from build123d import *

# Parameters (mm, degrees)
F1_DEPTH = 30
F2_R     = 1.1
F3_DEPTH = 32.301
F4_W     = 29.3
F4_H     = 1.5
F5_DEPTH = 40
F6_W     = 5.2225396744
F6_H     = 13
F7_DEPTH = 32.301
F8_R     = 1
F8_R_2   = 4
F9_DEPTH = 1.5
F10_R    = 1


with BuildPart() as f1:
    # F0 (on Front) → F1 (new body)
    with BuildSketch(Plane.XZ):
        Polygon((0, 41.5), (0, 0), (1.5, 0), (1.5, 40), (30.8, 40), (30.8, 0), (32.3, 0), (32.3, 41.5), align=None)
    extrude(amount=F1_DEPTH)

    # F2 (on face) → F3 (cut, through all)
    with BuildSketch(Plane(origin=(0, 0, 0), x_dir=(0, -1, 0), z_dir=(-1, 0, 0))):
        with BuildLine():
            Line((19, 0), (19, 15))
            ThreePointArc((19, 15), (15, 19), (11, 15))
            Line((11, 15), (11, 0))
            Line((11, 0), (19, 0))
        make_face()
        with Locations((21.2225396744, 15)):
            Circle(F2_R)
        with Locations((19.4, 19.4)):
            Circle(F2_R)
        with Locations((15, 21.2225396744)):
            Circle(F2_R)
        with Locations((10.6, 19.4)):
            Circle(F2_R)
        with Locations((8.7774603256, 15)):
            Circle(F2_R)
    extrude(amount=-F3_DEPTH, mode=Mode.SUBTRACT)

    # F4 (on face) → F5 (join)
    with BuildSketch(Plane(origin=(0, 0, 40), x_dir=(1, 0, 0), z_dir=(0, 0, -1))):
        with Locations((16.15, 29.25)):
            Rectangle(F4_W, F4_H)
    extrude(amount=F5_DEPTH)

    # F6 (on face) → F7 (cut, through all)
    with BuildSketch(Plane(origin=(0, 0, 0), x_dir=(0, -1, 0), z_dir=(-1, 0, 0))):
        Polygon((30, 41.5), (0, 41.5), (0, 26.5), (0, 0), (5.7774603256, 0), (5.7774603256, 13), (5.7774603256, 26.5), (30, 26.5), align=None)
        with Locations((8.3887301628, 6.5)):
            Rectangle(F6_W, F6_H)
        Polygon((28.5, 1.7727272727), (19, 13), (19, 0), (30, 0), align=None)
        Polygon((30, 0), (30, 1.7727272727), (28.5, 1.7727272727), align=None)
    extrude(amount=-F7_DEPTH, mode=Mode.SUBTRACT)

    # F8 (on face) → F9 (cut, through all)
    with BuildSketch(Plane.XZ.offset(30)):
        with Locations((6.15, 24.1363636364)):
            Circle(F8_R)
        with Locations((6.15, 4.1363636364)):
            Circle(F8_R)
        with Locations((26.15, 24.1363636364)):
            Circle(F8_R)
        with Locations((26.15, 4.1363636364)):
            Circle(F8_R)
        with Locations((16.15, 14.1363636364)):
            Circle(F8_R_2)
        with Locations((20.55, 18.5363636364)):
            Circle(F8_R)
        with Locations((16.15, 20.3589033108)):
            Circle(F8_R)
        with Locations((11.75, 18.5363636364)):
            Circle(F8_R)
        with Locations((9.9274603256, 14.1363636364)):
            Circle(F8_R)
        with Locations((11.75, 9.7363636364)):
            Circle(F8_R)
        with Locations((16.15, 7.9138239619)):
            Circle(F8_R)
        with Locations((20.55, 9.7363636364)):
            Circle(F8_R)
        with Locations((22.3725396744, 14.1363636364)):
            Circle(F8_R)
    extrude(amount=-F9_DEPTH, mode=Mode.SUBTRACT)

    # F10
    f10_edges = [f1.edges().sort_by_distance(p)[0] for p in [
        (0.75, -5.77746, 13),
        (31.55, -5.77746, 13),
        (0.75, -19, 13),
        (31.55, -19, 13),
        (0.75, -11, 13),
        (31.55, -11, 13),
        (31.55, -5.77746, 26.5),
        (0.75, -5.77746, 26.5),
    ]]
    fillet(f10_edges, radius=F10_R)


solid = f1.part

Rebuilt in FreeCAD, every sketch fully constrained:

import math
import FreeCAD as App
import Part
import Sketcher

V = App.Vector


def edges_at(feature, points):
    """Names of the edges that pass closest to the given points."""
    edges = feature.Shape.Edges
    near = lambda p: min(range(len(edges)), key=lambda i: edges[i].distToShape(Part.Vertex(*p))[0])
    return sorted({f"Edge{near(p) + 1}" for p in points})

doc = App.newDocument("Part")
params = doc.addObject("Spreadsheet::Sheet", "Params")
for row, (alias, value) in enumerate([
    ("sketch1_height", "40 mm"),
    ("sketch1_width", "1.5 mm"),
    ("sketch1_width2", "29.3 mm"),
    ("sketch1_height2", "41.5 mm"),
    ("pad1_length", "30 mm"),
    ("sketch2_radius", "4 mm"),
    ("sketch2_diameter", "2.2 mm"),
    ("sketch2_height", "15 mm"),
    ("sketch3_width", "29.3 mm"),
    ("sketch3_height", "1.5 mm"),
    ("pad2_length", "40 mm"),
    ("sketch4_width", "30 mm"),
    ("sketch4_width2", "11 mm"),
    ("sketch4_height", "13 mm"),
    ("sketch4_height2", "15 mm"),
    ("sketch4_width3", "1.5 mm"),
    ("sketch5_diameter", "2 mm"),
    ("sketch5_diameter2", "8 mm"),
    ("fillet_radius", "1 mm"),
], start=1):
    params.set(f"A{row}", alias)
    params.set(f"B{row}", "=" + value)
    params.setAlias(f"B{row}", alias)

body = doc.addObject("PartDesign::Body", "Body")

# Sketch on XZ plane
sketch1 = body.newObject("Sketcher::SketchObject", "Sketch")
sketch1.AttachmentSupport = (doc.getObject("XZ_Plane"), [""])
sketch1.MapMode = "FlatFace"
sketch1.addGeometry([
    Part.LineSegment(V(0, 41.5, 0), V(0, 0, 0)),  # 0
    Part.LineSegment(V(0, 0, 0), V(1.5, 0, 0)),  # 1
    Part.LineSegment(V(1.5, 0, 0), V(1.5, 40, 0)),  # 2
    Part.LineSegment(V(1.5, 40, 0), V(30.8, 40, 0)),  # 3
    Part.LineSegment(V(30.8, 40, 0), V(30.8, 0, 0)),  # 4
    Part.LineSegment(V(30.8, 0, 0), V(32.3, 0, 0)),  # 5
    Part.LineSegment(V(32.3, 0, 0), V(32.3, 41.5, 0)),  # 6
    Part.LineSegment(V(32.3, 41.5, 0), V(0, 41.5, 0)),  # 7
], False)
sketch1.addConstraint([
    Sketcher.Constraint("Coincident", 0, 2, 1, 1),
    Sketcher.Constraint("Coincident", 1, 2, 2, 1),
    Sketcher.Constraint("Coincident", 2, 2, 3, 1),
    Sketcher.Constraint("Coincident", 3, 2, 4, 1),
    Sketcher.Constraint("Coincident", 4, 2, 5, 1),
    Sketcher.Constraint("Coincident", 5, 2, 6, 1),
    Sketcher.Constraint("Coincident", 6, 2, 7, 1),
    Sketcher.Constraint("Coincident", 7, 2, 0, 1),
    Sketcher.Constraint("Vertical", 0),
    Sketcher.Constraint("Horizontal", 1),
    Sketcher.Constraint("Vertical", 2),
    Sketcher.Constraint("Horizontal", 3),
    Sketcher.Constraint("Vertical", 4),
    Sketcher.Constraint("Horizontal", 5),
    Sketcher.Constraint("Vertical", 6),
    Sketcher.Constraint("Horizontal", 7),
    Sketcher.Constraint("Coincident", 0, 2, -1, 1),
    Sketcher.Constraint("PointOnObject", 4, 2, -1),
    Sketcher.Constraint("Equal", 1, 5),
    Sketcher.Constraint("DistanceY", 2, 1, 2, 2, 40.0),
    Sketcher.Constraint("DistanceX", 1, 1, 1, 2, 1.5),
    Sketcher.Constraint("DistanceX", 3, 1, 3, 2, 29.3),
    Sketcher.Constraint("DistanceY", 0, 2, 0, 1, 41.5),
])
sketch1.setExpression("Constraints[19]", "Params.sketch1_height")
sketch1.setExpression("Constraints[20]", "Params.sketch1_width")
sketch1.setExpression("Constraints[21]", "Params.sketch1_width2")
sketch1.setExpression("Constraints[22]", "Params.sketch1_height2")
pad1 = body.newObject("PartDesign::Pad", "Pad")
pad1.Profile = sketch1
pad1.setExpression("Length", "Params.pad1_length")

# Sketch on YZ plane
sketch2 = body.newObject("Sketcher::SketchObject", "Sketch001")
sketch2.AttachmentSupport = (doc.getObject("YZ_Plane"), [""])
sketch2.MapMode = "FlatFace"
sketch2.addGeometry([
    Part.LineSegment(V(-19, 0, 0), V(-19, 15, 0)),  # 0
    Part.ArcOfCircle(Part.Circle(V(-15, 15, 0), V(0, 0, 1), 4), math.radians(0), math.radians(180)),  # 1
    Part.LineSegment(V(-11, 15, 0), V(-11, 0, 0)),  # 2
    Part.LineSegment(V(-11, 0, 0), V(-19, 0, 0)),  # 3
    Part.Circle(V(-21.22254, 15, 0), V(0, 0, 1), 1.1),  # 4
    Part.Circle(V(-19.4, 19.4, 0), V(0, 0, 1), 1.1),  # 5
    Part.Circle(V(-15, 21.22254, 0), V(0, 0, 1), 1.1),  # 6
    Part.Circle(V(-10.6, 19.4, 0), V(0, 0, 1), 1.1),  # 7
    Part.Circle(V(-8.77746, 15, 0), V(0, 0, 1), 1.1),  # 8
], False)
sketch2.addConstraint([
    Sketcher.Constraint("Tangent", 0, 2, 1, 2),
    Sketcher.Constraint("Tangent", 1, 1, 2, 1),
    Sketcher.Constraint("Coincident", 2, 2, 3, 1),
    Sketcher.Constraint("Coincident", 3, 2, 0, 1),
    Sketcher.Constraint("Vertical", 0),
    Sketcher.Constraint("Vertical", 2),
    Sketcher.Constraint("Horizontal", 3),
    Sketcher.Constraint("Equal", 4, 5),
    Sketcher.Constraint("Equal", 5, 6),
    Sketcher.Constraint("Equal", 6, 7),
    Sketcher.Constraint("Equal", 7, 8),
    Sketcher.Constraint("PointOnObject", 2, 2, -1),
    Sketcher.Constraint("Horizontal", 1, 3, 4, 3),
    Sketcher.Constraint("Horizontal", 5, 3, 7, 3),
    Sketcher.Constraint("Horizontal", 4, 3, 8, 3),
    Sketcher.Constraint("Vertical", 1, 3, 6, 3),
    Sketcher.Constraint("Radius", 1, 4.0),
    Sketcher.Constraint("Diameter", 4, 2.2),
    Sketcher.Constraint("DistanceY", 0, 1, 0, 2, 15.0),
    Sketcher.Constraint("DistanceX", 1, 3, -1, 1, 15.0),
    Sketcher.Constraint("DistanceX", 5, 3, -1, 1, 19.4),
    Sketcher.Constraint("DistanceY", -1, 1, 5, 3, 19.4),
    Sketcher.Constraint("DistanceX", 7, 3, -1, 1, 10.6),
    Sketcher.Constraint("DistanceX", 4, 3, -1, 1, 21.22254),
    Sketcher.Constraint("DistanceY", -1, 1, 6, 3, 21.22254),
    Sketcher.Constraint("DistanceX", 8, 3, -1, 1, 8.77746),
])
sketch2.setExpression("Constraints[16]", "Params.sketch2_radius")
sketch2.setExpression("Constraints[17]", "Params.sketch2_diameter")
sketch2.setExpression("Constraints[18]", "Params.sketch2_height")
pocket1 = body.newObject("PartDesign::Pocket", "Pocket")
pocket1.Profile = sketch2
pocket1.Type = "ThroughAll"
pocket1.Reversed = True

# Sketch on XY plane
sketch3 = body.newObject("Sketcher::SketchObject", "Sketch002")
sketch3.AttachmentSupport = (doc.getObject("XY_Plane"), [""])
sketch3.MapMode = "FlatFace"
sketch3.AttachmentOffset = App.Placement(V(0, 0, 40), App.Rotation())
sketch3.addGeometry([
    Part.LineSegment(V(1.5, -30, 0), V(1.5, -28.5, 0)),
    Part.LineSegment(V(1.5, -28.5, 0), V(30.8, -28.5, 0)),
    Part.LineSegment(V(30.8, -28.5, 0), V(30.8, -30, 0)),
    Part.LineSegment(V(30.8, -30, 0), V(1.5, -30, 0)),
], False)
sketch3.addConstraint([
    Sketcher.Constraint("Coincident", 0, 2, 1, 1),
    Sketcher.Constraint("Coincident", 1, 2, 2, 1),
    Sketcher.Constraint("Coincident", 2, 2, 3, 1),
    Sketcher.Constraint("Coincident", 3, 2, 0, 1),
    Sketcher.Constraint("Vertical", 0),
    Sketcher.Constraint("Horizontal", 1),
    Sketcher.Constraint("Vertical", 2),
    Sketcher.Constraint("Horizontal", 3),
    Sketcher.Constraint("DistanceX", 1, 1, 1, 2, 29.3),
    Sketcher.Constraint("DistanceY", 0, 1, 0, 2, 1.5),
    Sketcher.Constraint("DistanceY", 2, 2, -1, 1, 30.0),
    Sketcher.Constraint("DistanceX", -1, 1, 0, 2, 1.5),
])
sketch3.setExpression("Constraints[8]", "Params.sketch3_width")
sketch3.setExpression("Constraints[9]", "Params.sketch3_height")
pad2 = body.newObject("PartDesign::Pad", "Pad001")
pad2.Profile = sketch3
pad2.setExpression("Length", "Params.pad2_length")
pad2.Reversed = True

# Sketch on YZ plane
sketch4 = body.newObject("Sketcher::SketchObject", "Sketch003")
sketch4.AttachmentSupport = (doc.getObject("YZ_Plane"), [""])
sketch4.MapMode = "FlatFace"
sketch4.addGeometry([
    Part.LineSegment(V(-30, 41.5, 0), V(0, 41.5, 0)),  # 0
    Part.LineSegment(V(0, 41.5, 0), V(0, 0, 0)),  # 1
    Part.LineSegment(V(0, 0, 0), V(-11, 0, 0)),  # 2
    Part.LineSegment(V(-11, 0, 0), V(-11, 13, 0)),  # 3
    Part.LineSegment(V(-11, 13, 0), V(-5.77746, 13, 0)),  # 4
    Part.LineSegment(V(-5.77746, 13, 0), V(-5.77746, 26.5, 0)),  # 5
    Part.LineSegment(V(-5.77746, 26.5, 0), V(-30, 26.5, 0)),  # 6
    Part.LineSegment(V(-30, 26.5, 0), V(-30, 41.5, 0)),  # 7
    Part.LineSegment(V(-28.5, 1.772727, 0), V(-19, 13, 0)),  # 8
    Part.LineSegment(V(-19, 13, 0), V(-19, 0, 0)),  # 9
    Part.LineSegment(V(-19, 0, 0), V(-30, 0, 0)),  # 10
    Part.LineSegment(V(-30, 0, 0), V(-30, 1.772727, 0)),  # 11
    Part.LineSegment(V(-30, 1.772727, 0), V(-28.5, 1.772727, 0)),  # 12
], False)
sketch4.addConstraint([
    Sketcher.Constraint("Coincident", 0, 2, 1, 1),
    Sketcher.Constraint("Coincident", 1, 2, 2, 1),
    Sketcher.Constraint("Coincident", 2, 2, 3, 1),
    Sketcher.Constraint("Coincident", 3, 2, 4, 1),
    Sketcher.Constraint("Coincident", 4, 2, 5, 1),
    Sketcher.Constraint("Coincident", 5, 2, 6, 1),
    Sketcher.Constraint("Coincident", 6, 2, 7, 1),
    Sketcher.Constraint("Coincident", 7, 2, 0, 1),
    Sketcher.Constraint("Coincident", 8, 2, 9, 1),
    Sketcher.Constraint("Coincident", 9, 2, 10, 1),
    Sketcher.Constraint("Coincident", 10, 2, 11, 1),
    Sketcher.Constraint("Coincident", 11, 2, 12, 1),
    Sketcher.Constraint("Coincident", 12, 2, 8, 1),
    Sketcher.Constraint("Horizontal", 0),
    Sketcher.Constraint("Vertical", 1),
    Sketcher.Constraint("Horizontal", 2),
    Sketcher.Constraint("Vertical", 3),
    Sketcher.Constraint("Horizontal", 4),
    Sketcher.Constraint("Vertical", 5),
    Sketcher.Constraint("Horizontal", 6),
    Sketcher.Constraint("Vertical", 7),
    Sketcher.Constraint("Vertical", 9),
    Sketcher.Constraint("Horizontal", 10),
    Sketcher.Constraint("Vertical", 11),
    Sketcher.Constraint("Horizontal", 12),
    Sketcher.Constraint("Coincident", 1, 2, -1, 1),
    Sketcher.Constraint("PointOnObject", 9, 2, -1),
    Sketcher.Constraint("Horizontal", 4, 2, 8, 2),
    Sketcher.Constraint("Vertical", 7, 2, 10, 2),
    Sketcher.Constraint("Equal", 2, 10),
    Sketcher.Constraint("DistanceX", 0, 1, 0, 2, 30.0),
    Sketcher.Constraint("DistanceX", 2, 2, 2, 1, 11.0),
    Sketcher.Constraint("DistanceY", 3, 1, 3, 2, 13.0),
    Sketcher.Constraint("DistanceY", 7, 1, 7, 2, 15.0),
    Sketcher.Constraint("DistanceX", 12, 1, 12, 2, 1.5),
    Sketcher.Constraint("DistanceY", 1, 2, 1, 1, 41.5),
    Sketcher.Constraint("DistanceX", 4, 1, 4, 2, 5.22254),
    Sketcher.Constraint("DistanceY", 11, 1, 11, 2, 1.772727),
])
sketch4.setExpression("Constraints[30]", "Params.sketch4_width")
sketch4.setExpression("Constraints[31]", "Params.sketch4_width2")
sketch4.setExpression("Constraints[32]", "Params.sketch4_height")
sketch4.setExpression("Constraints[33]", "Params.sketch4_height2")
sketch4.setExpression("Constraints[34]", "Params.sketch4_width3")
pocket2 = body.newObject("PartDesign::Pocket", "Pocket001")
pocket2.Profile = sketch4
pocket2.Type = "ThroughAll"
pocket2.Reversed = True

# Sketch on XZ plane
sketch5 = body.newObject("Sketcher::SketchObject", "Sketch004")
sketch5.AttachmentSupport = (doc.getObject("XZ_Plane"), [""])
sketch5.MapMode = "FlatFace"
sketch5.AttachmentOffset = App.Placement(V(0, 0, 30), App.Rotation())
sketch5.addGeometry([
    Part.Circle(V(6.15, 24.136364, 0), V(0, 0, 1), 1),  # 0
    Part.Circle(V(6.15, 4.136364, 0), V(0, 0, 1), 1),  # 1
    Part.Circle(V(26.15, 24.136364, 0), V(0, 0, 1), 1),  # 2
    Part.Circle(V(26.15, 4.136364, 0), V(0, 0, 1), 1),  # 3
    Part.Circle(V(16.15, 14.136364, 0), V(0, 0, 1), 4),  # 4
    Part.Circle(V(20.55, 18.536364, 0), V(0, 0, 1), 1),  # 5
    Part.Circle(V(16.15, 20.358903, 0), V(0, 0, 1), 1),  # 6
    Part.Circle(V(11.75, 18.536364, 0), V(0, 0, 1), 1),  # 7
    Part.Circle(V(9.92746, 14.136364, 0), V(0, 0, 1), 1),  # 8
    Part.Circle(V(11.75, 9.736364, 0), V(0, 0, 1), 1),  # 9
    Part.Circle(V(16.15, 7.913824, 0), V(0, 0, 1), 1),  # 10
    Part.Circle(V(20.55, 9.736364, 0), V(0, 0, 1), 1),  # 11
    Part.Circle(V(22.37254, 14.136364, 0), V(0, 0, 1), 1),  # 12
], False)
sketch5.addConstraint([
    Sketcher.Constraint("Equal", 0, 1),
    Sketcher.Constraint("Equal", 1, 2),
    Sketcher.Constraint("Equal", 2, 3),
    Sketcher.Constraint("Equal", 3, 5),
    Sketcher.Constraint("Equal", 5, 6),
    Sketcher.Constraint("Equal", 6, 7),
    Sketcher.Constraint("Equal", 7, 8),
    Sketcher.Constraint("Equal", 8, 9),
    Sketcher.Constraint("Equal", 9, 10),
    Sketcher.Constraint("Equal", 10, 11),
    Sketcher.Constraint("Equal", 11, 12),
    Sketcher.Constraint("Horizontal", 0, 3, 2, 3),
    Sketcher.Constraint("Horizontal", 1, 3, 3, 3),
    Sketcher.Constraint("Horizontal", 5, 3, 7, 3),
    Sketcher.Constraint("Horizontal", 4, 3, 8, 3),
    Sketcher.Constraint("Horizontal", 9, 3, 11, 3),
    Sketcher.Constraint("Horizontal", 8, 3, 12, 3),
    Sketcher.Constraint("Vertical", 0, 3, 1, 3),
    Sketcher.Constraint("Vertical", 2, 3, 3, 3),
    Sketcher.Constraint("Vertical", 4, 3, 6, 3),
    Sketcher.Constraint("Vertical", 7, 3, 9, 3),
    Sketcher.Constraint("Vertical", 6, 3, 10, 3),
    Sketcher.Constraint("Vertical", 5, 3, 11, 3),
    Sketcher.Constraint("Diameter", 0, 2.0),
    Sketcher.Constraint("Diameter", 4, 8.0),
    Sketcher.Constraint("DistanceY", 1, 3, 0, 3, 20.0),
    Sketcher.Constraint("DistanceX", 0, 3, 2, 3, 20.0),
    Sketcher.Constraint("DistanceX", 0, 3, 4, 3, 10.0),
    Sketcher.Constraint("DistanceY", 4, 3, 0, 3, 10.0),
    Sketcher.Constraint("DistanceX", 4, 3, 5, 3, 4.4),
    Sketcher.Constraint("DistanceY", 4, 3, 5, 3, 4.4),
    Sketcher.Constraint("DistanceX", 7, 3, 6, 3, 4.4),
    Sketcher.Constraint("DistanceY", 9, 3, 8, 3, 4.4),
    Sketcher.Constraint("DistanceX", -1, 1, 0, 3, 6.15),
    Sketcher.Constraint("DistanceX", -1, 1, 8, 3, 9.92746),
    Sketcher.Constraint("DistanceX", -1, 1, 12, 3, 22.37254),
    Sketcher.Constraint("DistanceY", 5, 3, 6, 3, 1.82254),
    Sketcher.Constraint("DistanceY", 10, 3, 9, 3, 1.82254),
    Sketcher.Constraint("DistanceY", -1, 1, 0, 3, 24.136364),
])
sketch5.setExpression("Constraints[23]", "Params.sketch5_diameter")
sketch5.setExpression("Constraints[24]", "Params.sketch5_diameter2")
pocket3 = body.newObject("PartDesign::Pocket", "Pocket002")
pocket3.Profile = sketch5
pocket3.Type = "ThroughAll"
doc.recompute()

fillet = body.newObject("PartDesign::Fillet", "Fillet")
fillet.Base = (pocket3, edges_at(pocket3, [
    (0.75, -5.777, 13),
    (31.55, -5.777, 13),
    (0.75, -19, 13),
    (31.55, -19, 13),
    (0.75, -11, 13),
    (31.55, -11, 13),
    (31.55, -5.777, 26.5),
    (0.75, -5.777, 26.5),
]))
fillet.setExpression("Radius", "Params.fillet_radius")

doc.recompute()
